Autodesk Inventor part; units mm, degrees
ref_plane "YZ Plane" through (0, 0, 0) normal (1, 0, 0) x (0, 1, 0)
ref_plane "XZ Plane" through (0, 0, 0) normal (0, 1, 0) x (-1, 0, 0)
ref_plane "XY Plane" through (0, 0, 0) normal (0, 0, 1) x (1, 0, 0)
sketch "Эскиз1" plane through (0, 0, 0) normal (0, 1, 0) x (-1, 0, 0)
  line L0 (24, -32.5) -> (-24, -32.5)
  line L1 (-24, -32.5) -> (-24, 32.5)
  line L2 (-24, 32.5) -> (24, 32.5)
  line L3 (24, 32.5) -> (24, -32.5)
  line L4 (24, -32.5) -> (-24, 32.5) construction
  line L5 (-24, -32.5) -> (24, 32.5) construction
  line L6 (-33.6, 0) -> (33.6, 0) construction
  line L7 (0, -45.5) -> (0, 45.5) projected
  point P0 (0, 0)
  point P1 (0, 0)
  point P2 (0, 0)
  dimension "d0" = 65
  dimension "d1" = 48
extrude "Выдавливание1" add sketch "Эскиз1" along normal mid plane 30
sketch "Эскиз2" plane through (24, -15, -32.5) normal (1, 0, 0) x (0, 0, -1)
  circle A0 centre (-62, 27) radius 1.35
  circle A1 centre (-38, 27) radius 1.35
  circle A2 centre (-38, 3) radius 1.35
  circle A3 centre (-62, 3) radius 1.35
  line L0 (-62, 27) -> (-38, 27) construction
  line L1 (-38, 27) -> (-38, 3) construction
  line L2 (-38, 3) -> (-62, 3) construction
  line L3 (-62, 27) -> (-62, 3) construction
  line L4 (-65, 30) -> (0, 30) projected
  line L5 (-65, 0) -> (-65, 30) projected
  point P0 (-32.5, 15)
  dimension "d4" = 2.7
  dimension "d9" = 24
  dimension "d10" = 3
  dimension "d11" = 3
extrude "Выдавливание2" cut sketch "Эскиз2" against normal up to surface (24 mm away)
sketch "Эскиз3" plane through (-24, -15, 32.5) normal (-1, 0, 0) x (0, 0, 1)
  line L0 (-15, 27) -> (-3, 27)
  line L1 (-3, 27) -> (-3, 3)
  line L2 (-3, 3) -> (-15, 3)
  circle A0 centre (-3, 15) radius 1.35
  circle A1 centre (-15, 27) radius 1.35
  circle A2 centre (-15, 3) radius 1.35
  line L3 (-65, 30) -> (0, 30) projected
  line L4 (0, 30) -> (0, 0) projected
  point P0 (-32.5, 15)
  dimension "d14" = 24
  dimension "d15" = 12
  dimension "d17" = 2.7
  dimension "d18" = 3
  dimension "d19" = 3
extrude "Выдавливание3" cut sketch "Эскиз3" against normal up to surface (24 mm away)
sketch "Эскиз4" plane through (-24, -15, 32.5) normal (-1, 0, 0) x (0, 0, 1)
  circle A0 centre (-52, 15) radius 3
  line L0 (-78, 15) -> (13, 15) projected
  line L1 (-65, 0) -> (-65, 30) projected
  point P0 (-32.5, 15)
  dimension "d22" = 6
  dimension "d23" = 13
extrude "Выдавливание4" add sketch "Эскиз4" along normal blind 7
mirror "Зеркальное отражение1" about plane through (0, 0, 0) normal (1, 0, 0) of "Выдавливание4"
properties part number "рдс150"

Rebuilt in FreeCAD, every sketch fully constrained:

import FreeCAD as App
import Part
import Sketcher

V = App.Vector

doc = App.newDocument("Part")
body = doc.addObject("PartDesign::Body", "Body")

# Sketch on XZ plane
sketch1 = body.newObject("Sketcher::SketchObject", "Sketch")
sketch1.AttachmentSupport = (doc.getObject("XZ_Plane"), [""])
sketch1.MapMode = "FlatFace"
sketch1.addGeometry([
    Part.LineSegment(V(-24, -32, 0), V(-24, 32, 0)),
    Part.LineSegment(V(-24, 32, 0), V(24, 32, 0)),
    Part.LineSegment(V(24, 32, 0), V(24, -32, 0)),
    Part.LineSegment(V(24, -32, 0), V(-24, -32, 0)),
], False)
sketch1.addConstraint([
    Sketcher.Constraint("Coincident", 0, 2, 1, 1),
    Sketcher.Constraint("Coincident", 1, 2, 2, 1),
    Sketcher.Constraint("Coincident", 2, 2, 3, 1),
    Sketcher.Constraint("Coincident", 3, 2, 0, 1),
    Sketcher.Constraint("Vertical", 0),
    Sketcher.Constraint("Horizontal", 1),
    Sketcher.Constraint("Vertical", 2),
    Sketcher.Constraint("Horizontal", 3),
    Sketcher.Constraint("Symmetric", 0, 2, 2, 2, -1, 1),
    Sketcher.Constraint("DistanceX", 1, 1, 1, 2, 48.0),
    Sketcher.Constraint("DistanceY", 0, 1, 0, 2, 65.0),
])
pad1 = body.newObject("PartDesign::Pad", "Pad")
pad1.Profile = sketch1
pad1.Length = 30
pad1.Midplane = True

# Sketch on YZ plane
sketch2 = body.newObject("Sketcher::SketchObject", "Sketch001")
sketch2.AttachmentSupport = (doc.getObject("YZ_Plane"), [""])
sketch2.MapMode = "FlatFace"
sketch2.AttachmentOffset = App.Placement(V(0, 0, 24), App.Rotation())
sketch2.addGeometry([
    Part.Circle(V(12, 29.5, 0), V(0, 0, 1), 1.4),
    Part.Circle(V(12, 5.5, 0), V(0, 0, 1), 1.4),
    Part.Circle(V(-12, 5.5, 0), V(0, 0, 1), 1.4),
    Part.Circle(V(-12, 29.5, 0), V(0, 0, 1), 1.4),
], False)
sketch2.addConstraint([
    Sketcher.Constraint("Equal", 0, 1),
    Sketcher.Constraint("Equal", 1, 2),
    Sketcher.Constraint("Equal", 2, 3),
    Sketcher.Constraint("Symmetric", 1, 3, 2, 3, -2),
    Sketcher.Constraint("Symmetric", 0, 3, 3, 3, -2),
    Sketcher.Constraint("Vertical", 0, 3, 1, 3),
    Sketcher.Constraint("Diameter", 0, 2.7),
    Sketcher.Constraint("DistanceY", 1, 3, 0, 3, 24.0),
    Sketcher.Constraint("DistanceX", 2, 3, 1, 3, 24.0),
    Sketcher.Constraint("DistanceY", -1, 1, 0, 3, 29.5),
])
pocket1 = body.newObject("PartDesign::Pocket", "Pocket")
pocket1.Profile = sketch2
pocket1.Length = 24

# Sketch on YZ plane
sketch3 = body.newObject("Sketcher::SketchObject", "Sketch002")
sketch3.AttachmentSupport = (doc.getObject("YZ_Plane"), [""])
sketch3.MapMode = "FlatFace"
sketch3.AttachmentOffset = App.Placement(V(0, 0, -24), App.Rotation())
sketch3.addGeometry([
    Part.Circle(V(-12, 17.5, 0), V(0, 0, 1), 1.4),
    Part.Circle(V(0, 29.5, 0), V(0, 0, 1), 1.4),
    Part.Circle(V(12, 17.5, 0), V(0, 0, 1), 1.4),
], False)
sketch3.addConstraint([
    Sketcher.Constraint("Equal", 0, 1),
    Sketcher.Constraint("Equal", 1, 2),
    Sketcher.Constraint("Symmetric", 0, 3, 2, 3, -2),
    Sketcher.Constraint("PointOnObject", 1, 3, -2),
    Sketcher.Constraint("Diameter", 0, 2.7),
    Sketcher.Constraint("DistanceX", 0, 3, -1, 1, 12.0),
    Sketcher.Constraint("DistanceY", 0, 3, 1, 3, 12.0),
    Sketcher.Constraint("DistanceY", -1, 1, 0, 3, 17.5),
])
pocket2 = body.newObject("PartDesign::Pocket", "Pocket001")
pocket2.Profile = sketch3
pocket2.Length = 24
pocket2.Reversed = True

# Sketch on YZ plane
sketch4 = body.newObject("Sketcher::SketchObject", "Sketch003")
sketch4.AttachmentSupport = (doc.getObject("YZ_Plane"), [""])
sketch4.MapMode = "FlatFace"
sketch4.AttachmentOffset = App.Placement(V(0, 0, -24), App.Rotation())
sketch4.addGeometry(Part.Circle(V(0, -19.5, 0), V(0, 0, 1), 3), False)
sketch4.addConstraint([
    Sketcher.Constraint("PointOnObject", 0, 3, -2),
    Sketcher.Constraint("Diameter", 0, 6.0),
    Sketcher.Constraint("DistanceY", 0, 3, -1, 1, 19.5),
])
pad2 = body.newObject("PartDesign::Pad", "Pad001")
pad2.Profile = sketch4
pad2.Length = 7
pad2.Reversed = True
doc.recompute()

mirrored = body.newObject("PartDesign::Mirrored", "Mirrored")
mirrored.Originals = [pad2]
mirrored.MirrorPlane = (doc.getObject("YZ_Plane"), [""])
body.Tip = mirrored

doc.recompute()
